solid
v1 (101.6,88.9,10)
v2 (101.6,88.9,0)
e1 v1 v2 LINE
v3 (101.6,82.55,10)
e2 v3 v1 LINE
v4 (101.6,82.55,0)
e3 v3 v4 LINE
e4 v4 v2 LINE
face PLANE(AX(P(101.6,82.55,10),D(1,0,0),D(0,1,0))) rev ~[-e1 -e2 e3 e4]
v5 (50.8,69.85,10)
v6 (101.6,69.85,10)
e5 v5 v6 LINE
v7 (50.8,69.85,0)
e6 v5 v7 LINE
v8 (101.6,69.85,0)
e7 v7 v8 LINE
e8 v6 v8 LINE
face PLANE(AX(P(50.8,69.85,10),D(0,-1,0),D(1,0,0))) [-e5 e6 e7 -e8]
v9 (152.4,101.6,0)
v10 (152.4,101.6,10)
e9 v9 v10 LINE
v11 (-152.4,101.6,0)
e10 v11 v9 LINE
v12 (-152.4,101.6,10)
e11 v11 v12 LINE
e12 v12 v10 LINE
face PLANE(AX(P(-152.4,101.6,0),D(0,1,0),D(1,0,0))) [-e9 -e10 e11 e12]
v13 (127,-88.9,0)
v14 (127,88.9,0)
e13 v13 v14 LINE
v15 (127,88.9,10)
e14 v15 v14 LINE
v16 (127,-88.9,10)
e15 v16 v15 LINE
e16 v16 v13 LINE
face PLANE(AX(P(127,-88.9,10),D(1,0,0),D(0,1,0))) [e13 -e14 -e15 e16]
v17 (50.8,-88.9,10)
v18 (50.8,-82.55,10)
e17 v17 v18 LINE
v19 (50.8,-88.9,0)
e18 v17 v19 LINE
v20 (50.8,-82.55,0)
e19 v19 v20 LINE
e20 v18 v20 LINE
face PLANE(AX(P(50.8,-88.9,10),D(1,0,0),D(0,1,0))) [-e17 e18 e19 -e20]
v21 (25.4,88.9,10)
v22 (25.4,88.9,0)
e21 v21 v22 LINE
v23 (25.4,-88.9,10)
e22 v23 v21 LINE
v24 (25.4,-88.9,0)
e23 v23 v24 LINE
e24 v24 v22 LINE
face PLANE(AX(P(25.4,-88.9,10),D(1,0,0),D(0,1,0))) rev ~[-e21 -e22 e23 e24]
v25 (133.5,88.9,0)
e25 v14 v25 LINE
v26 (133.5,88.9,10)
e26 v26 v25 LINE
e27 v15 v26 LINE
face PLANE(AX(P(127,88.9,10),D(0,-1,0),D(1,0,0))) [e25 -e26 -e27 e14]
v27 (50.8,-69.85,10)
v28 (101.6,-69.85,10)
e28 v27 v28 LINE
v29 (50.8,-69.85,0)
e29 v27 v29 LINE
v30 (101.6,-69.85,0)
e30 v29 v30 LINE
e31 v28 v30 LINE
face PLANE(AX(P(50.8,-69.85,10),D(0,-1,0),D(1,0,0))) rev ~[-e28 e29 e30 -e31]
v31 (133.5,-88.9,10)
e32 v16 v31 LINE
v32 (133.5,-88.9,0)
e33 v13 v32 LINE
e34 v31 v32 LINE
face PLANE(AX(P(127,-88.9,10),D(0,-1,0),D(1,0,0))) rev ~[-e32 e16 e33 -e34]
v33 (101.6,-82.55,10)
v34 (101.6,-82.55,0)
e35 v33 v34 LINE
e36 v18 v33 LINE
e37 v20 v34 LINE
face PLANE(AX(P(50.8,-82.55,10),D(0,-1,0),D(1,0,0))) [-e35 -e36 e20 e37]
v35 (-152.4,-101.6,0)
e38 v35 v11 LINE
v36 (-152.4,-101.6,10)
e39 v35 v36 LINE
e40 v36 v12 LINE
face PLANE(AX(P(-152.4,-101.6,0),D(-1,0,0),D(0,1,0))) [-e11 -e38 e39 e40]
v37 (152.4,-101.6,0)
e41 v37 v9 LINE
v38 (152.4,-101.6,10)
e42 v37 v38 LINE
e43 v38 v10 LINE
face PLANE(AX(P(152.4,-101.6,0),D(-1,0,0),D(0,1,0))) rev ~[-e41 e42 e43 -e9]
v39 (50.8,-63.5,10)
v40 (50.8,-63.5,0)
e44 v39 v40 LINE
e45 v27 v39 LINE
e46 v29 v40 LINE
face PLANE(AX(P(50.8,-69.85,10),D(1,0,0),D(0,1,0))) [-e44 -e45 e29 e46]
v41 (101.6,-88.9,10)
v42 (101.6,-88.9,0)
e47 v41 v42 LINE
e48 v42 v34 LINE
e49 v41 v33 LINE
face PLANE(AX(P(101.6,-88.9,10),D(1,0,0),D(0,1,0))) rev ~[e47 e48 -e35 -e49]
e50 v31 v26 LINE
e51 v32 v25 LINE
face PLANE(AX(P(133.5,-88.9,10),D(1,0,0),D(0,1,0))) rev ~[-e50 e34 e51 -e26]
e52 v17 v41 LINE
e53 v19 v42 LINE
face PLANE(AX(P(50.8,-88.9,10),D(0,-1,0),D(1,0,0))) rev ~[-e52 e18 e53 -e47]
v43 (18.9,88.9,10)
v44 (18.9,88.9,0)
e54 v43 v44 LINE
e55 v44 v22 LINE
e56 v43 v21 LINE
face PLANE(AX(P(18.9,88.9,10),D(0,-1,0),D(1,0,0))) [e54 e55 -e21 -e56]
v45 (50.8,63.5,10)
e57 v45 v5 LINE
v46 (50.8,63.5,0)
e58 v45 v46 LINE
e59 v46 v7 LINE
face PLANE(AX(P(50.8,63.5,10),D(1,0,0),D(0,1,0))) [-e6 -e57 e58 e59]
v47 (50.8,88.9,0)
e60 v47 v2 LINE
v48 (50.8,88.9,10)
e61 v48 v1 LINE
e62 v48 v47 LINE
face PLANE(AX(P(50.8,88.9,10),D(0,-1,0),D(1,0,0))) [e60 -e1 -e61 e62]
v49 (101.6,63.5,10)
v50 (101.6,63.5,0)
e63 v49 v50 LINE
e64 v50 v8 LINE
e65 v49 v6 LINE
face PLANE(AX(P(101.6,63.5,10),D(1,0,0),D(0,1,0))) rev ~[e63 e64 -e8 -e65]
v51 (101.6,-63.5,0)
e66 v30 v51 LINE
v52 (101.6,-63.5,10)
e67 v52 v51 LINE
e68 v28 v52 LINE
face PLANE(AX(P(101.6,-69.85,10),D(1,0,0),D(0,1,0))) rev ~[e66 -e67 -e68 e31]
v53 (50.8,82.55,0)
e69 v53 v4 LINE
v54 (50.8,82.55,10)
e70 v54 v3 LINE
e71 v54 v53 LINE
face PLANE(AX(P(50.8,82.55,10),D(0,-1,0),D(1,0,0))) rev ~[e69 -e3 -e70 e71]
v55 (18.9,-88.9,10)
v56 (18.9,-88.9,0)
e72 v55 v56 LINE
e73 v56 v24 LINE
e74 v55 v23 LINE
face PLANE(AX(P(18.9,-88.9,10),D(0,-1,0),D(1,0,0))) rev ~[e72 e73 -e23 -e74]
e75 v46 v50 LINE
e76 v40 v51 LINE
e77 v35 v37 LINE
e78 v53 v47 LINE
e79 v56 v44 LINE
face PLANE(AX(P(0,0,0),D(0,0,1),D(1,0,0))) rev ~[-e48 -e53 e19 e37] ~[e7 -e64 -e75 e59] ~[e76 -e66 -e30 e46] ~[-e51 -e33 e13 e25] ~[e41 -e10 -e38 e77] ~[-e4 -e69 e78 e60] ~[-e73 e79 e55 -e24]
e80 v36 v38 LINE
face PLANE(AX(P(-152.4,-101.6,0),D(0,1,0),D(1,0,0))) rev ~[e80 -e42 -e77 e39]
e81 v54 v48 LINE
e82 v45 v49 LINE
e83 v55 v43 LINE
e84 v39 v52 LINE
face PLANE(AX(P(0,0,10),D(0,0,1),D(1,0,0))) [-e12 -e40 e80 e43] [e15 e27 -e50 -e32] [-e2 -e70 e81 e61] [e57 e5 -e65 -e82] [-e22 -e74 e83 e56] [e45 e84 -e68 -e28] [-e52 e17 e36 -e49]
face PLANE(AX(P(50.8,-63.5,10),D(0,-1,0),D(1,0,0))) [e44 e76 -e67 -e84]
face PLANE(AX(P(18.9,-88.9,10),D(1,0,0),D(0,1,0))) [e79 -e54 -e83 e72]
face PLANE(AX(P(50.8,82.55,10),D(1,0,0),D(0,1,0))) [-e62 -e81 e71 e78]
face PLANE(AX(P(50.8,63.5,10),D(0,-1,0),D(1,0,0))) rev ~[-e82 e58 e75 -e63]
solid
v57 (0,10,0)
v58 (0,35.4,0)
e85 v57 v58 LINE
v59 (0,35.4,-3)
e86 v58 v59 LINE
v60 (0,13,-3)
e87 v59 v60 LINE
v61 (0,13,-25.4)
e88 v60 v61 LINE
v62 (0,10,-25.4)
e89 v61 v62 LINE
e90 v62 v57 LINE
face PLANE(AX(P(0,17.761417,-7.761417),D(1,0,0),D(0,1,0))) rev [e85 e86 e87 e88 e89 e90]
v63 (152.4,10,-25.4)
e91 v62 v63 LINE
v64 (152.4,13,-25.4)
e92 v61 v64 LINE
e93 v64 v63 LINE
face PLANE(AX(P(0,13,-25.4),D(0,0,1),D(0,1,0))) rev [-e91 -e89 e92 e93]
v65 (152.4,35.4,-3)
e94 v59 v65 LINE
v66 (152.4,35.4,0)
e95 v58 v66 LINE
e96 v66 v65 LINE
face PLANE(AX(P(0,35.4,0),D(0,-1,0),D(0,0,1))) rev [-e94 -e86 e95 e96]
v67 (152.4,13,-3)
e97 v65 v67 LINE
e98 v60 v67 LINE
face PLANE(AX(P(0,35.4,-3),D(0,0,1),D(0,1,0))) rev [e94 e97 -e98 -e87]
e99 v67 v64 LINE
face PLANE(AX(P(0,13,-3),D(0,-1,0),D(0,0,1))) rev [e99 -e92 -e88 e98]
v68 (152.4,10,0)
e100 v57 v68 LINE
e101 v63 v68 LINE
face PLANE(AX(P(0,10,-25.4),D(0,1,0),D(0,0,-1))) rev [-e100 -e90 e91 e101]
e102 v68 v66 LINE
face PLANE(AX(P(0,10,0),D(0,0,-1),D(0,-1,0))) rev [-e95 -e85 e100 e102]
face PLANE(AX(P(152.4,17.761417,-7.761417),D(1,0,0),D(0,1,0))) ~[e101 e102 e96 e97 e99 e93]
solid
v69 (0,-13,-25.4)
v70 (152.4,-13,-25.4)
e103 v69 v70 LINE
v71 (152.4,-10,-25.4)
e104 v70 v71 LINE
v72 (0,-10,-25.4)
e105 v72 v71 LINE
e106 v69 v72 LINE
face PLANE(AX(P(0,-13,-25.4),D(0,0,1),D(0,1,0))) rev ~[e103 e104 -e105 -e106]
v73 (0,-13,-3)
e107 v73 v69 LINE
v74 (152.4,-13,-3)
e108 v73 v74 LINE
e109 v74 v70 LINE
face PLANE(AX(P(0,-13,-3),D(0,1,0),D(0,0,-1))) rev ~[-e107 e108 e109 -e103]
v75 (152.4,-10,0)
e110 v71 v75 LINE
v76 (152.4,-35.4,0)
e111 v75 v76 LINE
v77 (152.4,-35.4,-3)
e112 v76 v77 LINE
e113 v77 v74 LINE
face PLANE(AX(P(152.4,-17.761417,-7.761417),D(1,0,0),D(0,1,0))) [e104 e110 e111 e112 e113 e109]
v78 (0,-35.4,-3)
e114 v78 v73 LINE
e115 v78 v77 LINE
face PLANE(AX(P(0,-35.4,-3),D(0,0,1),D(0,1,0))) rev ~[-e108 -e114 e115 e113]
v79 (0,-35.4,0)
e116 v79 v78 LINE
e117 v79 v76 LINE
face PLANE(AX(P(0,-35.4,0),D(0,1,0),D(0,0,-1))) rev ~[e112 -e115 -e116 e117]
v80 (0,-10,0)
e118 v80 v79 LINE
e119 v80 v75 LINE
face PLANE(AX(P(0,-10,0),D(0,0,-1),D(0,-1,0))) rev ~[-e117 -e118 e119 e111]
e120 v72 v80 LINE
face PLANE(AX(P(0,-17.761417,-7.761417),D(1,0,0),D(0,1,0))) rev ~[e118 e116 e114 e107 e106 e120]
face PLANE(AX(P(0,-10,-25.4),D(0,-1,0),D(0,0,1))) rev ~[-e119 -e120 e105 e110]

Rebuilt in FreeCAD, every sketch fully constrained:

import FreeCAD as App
import Part
import Sketcher
Q = App.Units.Quantity


def add_polygon(sketch, points):
    """Adds a closed chain of lines whose ends are joined by coincident constraints."""
    first, n = sketch.GeometryCount, len(points)
    for a, b in zip(points, points[1:] + points[:1]):
        sketch.addGeometry(Part.LineSegment(App.Vector(*a, 0), App.Vector(*b, 0)), False)
    for i in range(n):
        sketch.addConstraint(Sketcher.Constraint("Coincident", first + i, 2, first + (i + 1) % n, 1))

doc = App.newDocument("Part")
params = doc.addObject("Spreadsheet::Sheet", "Params")
for row, (alias, value) in enumerate([
    ("sketch1_width", "12 in"),
    ("sketch1_height", "8 in"),
    ("pad1_length", "10 mm"),
    ("sketch2_width", "2 in"),
    ("sketch2_height", "7 in"),
    ("sketch2_height2", "0.25 in"),
    ("pocket1_length", "25 mm"),
    ("sketch3_width", "1 in"),
    ("pad2_length", "6 in"),
], start=1):
    params.set(f"A{row}", alias)
    params.set(f"B{row}", "=" + value)
    params.setAlias(f"B{row}", alias)

body = doc.addObject("PartDesign::Body", "Body")

sketch1 = body.newObject("Sketcher::SketchObject", "Sketch")
sketch1.AttachmentSupport = (doc.getObject("XY_Plane"), [""])
sketch1.MapMode = "FlatFace"
add_polygon(sketch1, [(-152, 102), (-152, -102), (152, -102), (152, 102)])
sketch1.addConstraint(Sketcher.Constraint("Vertical", 0))
sketch1.addConstraint(Sketcher.Constraint("Horizontal", 1))
sketch1.addConstraint(Sketcher.Constraint("Vertical", 2))
sketch1.addConstraint(Sketcher.Constraint("Horizontal", 3))
sketch1.addConstraint(Sketcher.Constraint("Symmetric", 0, 2, 2, 2, -1, 1))
sketch1.addConstraint(Sketcher.Constraint("DistanceX", 1, 1, 1, 2, Q("12 in")))
sketch1.addConstraint(Sketcher.Constraint("DistanceY", 0, 2, 0, 1, Q("8 in")))
sketch1.setExpression("Constraints[9]", "Params.sketch1_width")
sketch1.setExpression("Constraints[10]", "Params.sketch1_height")
pad1 = body.newObject("PartDesign::Pad", "Pad")
pad1.Profile = sketch1
pad1.setExpression("Length", "Params.pad1_length")

sketch2 = body.newObject("Sketcher::SketchObject", "Sketch001")
sketch2.AttachmentSupport = (doc.getObject("XY_Plane"), [""])
sketch2.MapMode = "FlatFace"
sketch2.AttachmentOffset = App.Placement(App.Vector(0, 0, 10), App.Rotation())
add_polygon(sketch2, [(51, 89), (51, 83), (102, 83), (102, 89)])
add_polygon(sketch2, [(51, 70), (51, 64), (102, 64), (102, 70)])
add_polygon(sketch2, [(51, -64), (51, -70), (102, -70), (102, -64)])
add_polygon(sketch2, [(51, -83), (51, -89), (102, -89), (102, -83)])
add_polygon(sketch2, [(127, 89), (127, -89), (134, -89), (134, 89)])
add_polygon(sketch2, [(19, 89), (19, -89), (25, -89), (25, 89)])
sketch2.addConstraint(Sketcher.Constraint("Vertical", 0))
sketch2.addConstraint(Sketcher.Constraint("Horizontal", 1))
sketch2.addConstraint(Sketcher.Constraint("Vertical", 2))
sketch2.addConstraint(Sketcher.Constraint("Horizontal", 3))
sketch2.addConstraint(Sketcher.Constraint("Vertical", 4))
sketch2.addConstraint(Sketcher.Constraint("Horizontal", 5))
sketch2.addConstraint(Sketcher.Constraint("Vertical", 6))
sketch2.addConstraint(Sketcher.Constraint("Horizontal", 7))
sketch2.addConstraint(Sketcher.Constraint("Vertical", 8))
sketch2.addConstraint(Sketcher.Constraint("Horizontal", 9))
sketch2.addConstraint(Sketcher.Constraint("Vertical", 10))
sketch2.addConstraint(Sketcher.Constraint("Horizontal", 11))
sketch2.addConstraint(Sketcher.Constraint("Vertical", 12))
sketch2.addConstraint(Sketcher.Constraint("Horizontal", 13))
sketch2.addConstraint(Sketcher.Constraint("Vertical", 14))
sketch2.addConstraint(Sketcher.Constraint("Horizontal", 15))
sketch2.addConstraint(Sketcher.Constraint("Vertical", 16))
sketch2.addConstraint(Sketcher.Constraint("Horizontal", 17))
sketch2.addConstraint(Sketcher.Constraint("Vertical", 18))
sketch2.addConstraint(Sketcher.Constraint("Horizontal", 19))
sketch2.addConstraint(Sketcher.Constraint("Vertical", 20))
sketch2.addConstraint(Sketcher.Constraint("Horizontal", 21))
sketch2.addConstraint(Sketcher.Constraint("Vertical", 22))
sketch2.addConstraint(Sketcher.Constraint("Horizontal", 23))
sketch2.addConstraint(Sketcher.Constraint("Symmetric", 7, 2, 8, 2, -1))
sketch2.addConstraint(Sketcher.Constraint("Symmetric", 5, 2, 10, 2, -1))
sketch2.addConstraint(Sketcher.Constraint("Symmetric", 3, 2, 12, 2, -1))
sketch2.addConstraint(Sketcher.Constraint("Symmetric", 1, 2, 14, 2, -1))
sketch2.addConstraint(Sketcher.Constraint("Horizontal", 13, 2, 16, 2))
sketch2.addConstraint(Sketcher.Constraint("Horizontal", 3, 2, 18, 2))
sketch2.addConstraint(Sketcher.Constraint("Horizontal", 17, 2, 20, 2))
sketch2.addConstraint(Sketcher.Constraint("Horizontal", 19, 2, 22, 2))
sketch2.addConstraint(Sketcher.Constraint("Vertical", 3, 2, 4, 2))
sketch2.addConstraint(Sketcher.Constraint("Vertical", 2, 2, 5, 2))
sketch2.addConstraint(Sketcher.Constraint("Equal", 19, 21))
sketch2.addConstraint(Sketcher.Constraint("Equal", 2, 4))
sketch2.addConstraint(Sketcher.Constraint("DistanceX", 1, 1, 1, 2, Q("2 in")))
sketch2.addConstraint(Sketcher.Constraint("DistanceY", 16, 2, 16, 1, Q("7 in")))
sketch2.addConstraint(Sketcher.Constraint("DistanceX", -1, 1, 0, 2, Q("2 in")))
sketch2.addConstraint(Sketcher.Constraint("DistanceX", -1, 1, 16, 2, Q("5 in")))
sketch2.addConstraint(Sketcher.Constraint("DistanceX", -1, 1, 21, 2, Q("1 in")))
sketch2.addConstraint(Sketcher.Constraint("DistanceY", 4, 2, 3, 2, Q("1 in")))
sketch2.addConstraint(Sketcher.Constraint("DistanceY", 0, 2, 0, 1, Q("0.25 in")))
sketch2.addConstraint(Sketcher.Constraint("DistanceX", 17, 1, 17, 2, Q("6.5 mm")))
sketch2.setExpression("Constraints[60]", "Params.sketch2_width")
sketch2.setExpression("Constraints[61]", "Params.sketch2_height")
sketch2.setExpression("Constraints[66]", "Params.sketch2_height2")
pocket1 = body.newObject("PartDesign::Pocket", "Pocket")
pocket1.Profile = sketch2
pocket1.setExpression("Length", "Params.pocket1_length")
body2 = doc.addObject("PartDesign::Body", "Body001")

sketch3 = body2.newObject("Sketcher::SketchObject", "Sketch002")
sketch3.AttachmentSupport = (doc.getObject("YZ_Plane001"), [""])
sketch3.MapMode = "FlatFace"
add_polygon(sketch3, [(-35.4, 0), (-35.4, -3), (-13, -3), (-13, -25.4), (-10, -25.4), (-10, 0)])
sketch3.addConstraint(Sketcher.Constraint("Vertical", 0))
sketch3.addConstraint(Sketcher.Constraint("Horizontal", 1))
sketch3.addConstraint(Sketcher.Constraint("Vertical", 2))
sketch3.addConstraint(Sketcher.Constraint("Horizontal", 3))
sketch3.addConstraint(Sketcher.Constraint("Vertical", 4))
sketch3.addConstraint(Sketcher.Constraint("Horizontal", 5))
sketch3.addConstraint(Sketcher.Constraint("PointOnObject", 4, 2, -1))
sketch3.addConstraint(Sketcher.Constraint("Equal", 3, 0))
sketch3.addConstraint(Sketcher.Constraint("Equal", 1, 2))
sketch3.addConstraint(Sketcher.Constraint("DistanceX", 5, 2, 5, 1, Q("1 in")))
sketch3.addConstraint(Sketcher.Constraint("DistanceX", 1, 1, 1, 2, Q("22.4 mm")))
sketch3.addConstraint(Sketcher.Constraint("DistanceX", 0, 2, -1, 1, Q("35.4 mm")))
sketch3.setExpression("Constraints[15]", "Params.sketch3_width")
pad2 = body2.newObject("PartDesign::Pad", "Pad001")
pad2.Profile = sketch3
pad2.setExpression("Length", "Params.pad2_length")
body3 = doc.addObject("PartDesign::Body", "Body002")
doc.recompute()

mirroring = doc.addObject("Part::Mirroring", "Mirroring")
mirroring.Source = body2
mirroring.Base = App.Vector(0, 0, 0)
mirroring.Normal = App.Vector(0, -1, 0)
body3.BaseFeature = mirroring
doc.recompute()
mirroring.Visibility = False

doc.recompute()
